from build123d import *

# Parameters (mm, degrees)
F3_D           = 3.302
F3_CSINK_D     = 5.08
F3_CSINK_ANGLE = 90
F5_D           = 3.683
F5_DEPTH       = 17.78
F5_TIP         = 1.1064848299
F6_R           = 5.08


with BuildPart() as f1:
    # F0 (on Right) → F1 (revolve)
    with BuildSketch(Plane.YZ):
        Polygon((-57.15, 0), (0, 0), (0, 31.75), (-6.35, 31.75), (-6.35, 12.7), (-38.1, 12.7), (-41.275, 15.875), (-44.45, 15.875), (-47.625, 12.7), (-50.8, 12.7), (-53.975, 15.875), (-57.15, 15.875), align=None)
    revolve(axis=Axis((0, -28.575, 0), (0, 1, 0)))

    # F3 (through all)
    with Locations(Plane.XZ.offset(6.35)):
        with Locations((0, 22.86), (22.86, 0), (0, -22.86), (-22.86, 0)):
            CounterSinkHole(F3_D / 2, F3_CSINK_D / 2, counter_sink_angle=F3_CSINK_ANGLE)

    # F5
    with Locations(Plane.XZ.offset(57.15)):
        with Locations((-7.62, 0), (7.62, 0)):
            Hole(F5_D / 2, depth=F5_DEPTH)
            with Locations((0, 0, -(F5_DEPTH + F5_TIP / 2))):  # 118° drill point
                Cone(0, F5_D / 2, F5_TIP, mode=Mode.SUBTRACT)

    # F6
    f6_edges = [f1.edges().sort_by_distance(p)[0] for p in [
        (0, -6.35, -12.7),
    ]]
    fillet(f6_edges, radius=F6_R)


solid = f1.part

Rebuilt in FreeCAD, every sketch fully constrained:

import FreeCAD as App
import Part
import Sketcher
from FreeCAD import Vector
Q = App.Units.Quantity


def edges_at(feature, points):
    """Names of the edges that pass closest to the given points."""
    edges = feature.Shape.Edges
    near = lambda p: min(range(len(edges)), key=lambda i: edges[i].distToShape(Part.Vertex(*p))[0])
    return sorted({f"Edge{near(p) + 1}" for p in points})

doc = App.newDocument("Part")
body = doc.addObject("PartDesign::Body", "Body")

# Sketch on YZ plane
sketch1 = doc.addObject("Sketcher::SketchObject", "Sketch")
body.addObject(sketch1)
sketch1.AttachmentSupport = (doc.YZ_Plane, [""])
sketch1.MapMode = "FlatFace"
sketch1.addGeometry([
    Part.LineSegment(Vector(-57.15, 0, 0), Vector(0, 0, 0)),  # 0
    Part.LineSegment(Vector(0, 0, 0), Vector(0, 31.75, 0)),  # 1
    Part.LineSegment(Vector(0, 31.75, 0), Vector(-6.35, 31.75, 0)),  # 2
    Part.LineSegment(Vector(-6.35, 31.75, 0), Vector(-6.35, 12.7, 0)),  # 3
    Part.LineSegment(Vector(-6.35, 12.7, 0), Vector(-38.1, 12.7, 0)),  # 4
    Part.LineSegment(Vector(-38.1, 12.7, 0), Vector(-41.275, 15.875, 0)),  # 5
    Part.LineSegment(Vector(-41.275, 15.875, 0), Vector(-44.45, 15.875, 0)),  # 6
    Part.LineSegment(Vector(-44.45, 15.875, 0), Vector(-47.625, 12.7, 0)),  # 7
    Part.LineSegment(Vector(-47.625, 12.7, 0), Vector(-50.8, 12.7, 0)),  # 8
    Part.LineSegment(Vector(-50.8, 12.7, 0), Vector(-53.975, 15.875, 0)),  # 9
    Part.LineSegment(Vector(-53.975, 15.875, 0), Vector(-57.15, 15.875, 0)),  # 10
    Part.LineSegment(Vector(-57.15, 15.875, 0), Vector(-57.15, 0, 0)),  # 11
], False)
sketch1.addConstraint([
    Sketcher.Constraint("Coincident", 0, 2, 1, 1),
    Sketcher.Constraint("Coincident", 1, 2, 2, 1),
    Sketcher.Constraint("Coincident", 2, 2, 3, 1),
    Sketcher.Constraint("Coincident", 3, 2, 4, 1),
    Sketcher.Constraint("Coincident", 4, 2, 5, 1),
    Sketcher.Constraint("Coincident", 5, 2, 6, 1),
    Sketcher.Constraint("Coincident", 6, 2, 7, 1),
    Sketcher.Constraint("Coincident", 7, 2, 8, 1),
    Sketcher.Constraint("Coincident", 8, 2, 9, 1),
    Sketcher.Constraint("Coincident", 9, 2, 10, 1),
    Sketcher.Constraint("Coincident", 10, 2, 11, 1),
    Sketcher.Constraint("Coincident", 11, 2, 0, 1),
    Sketcher.Constraint("Horizontal", 0),
    Sketcher.Constraint("Vertical", 1),
    Sketcher.Constraint("Horizontal", 2),
    Sketcher.Constraint("Vertical", 3),
    Sketcher.Constraint("Horizontal", 4),
    Sketcher.Constraint("Horizontal", 6),
    Sketcher.Constraint("Horizontal", 8),
    Sketcher.Constraint("Horizontal", 10),
    Sketcher.Constraint("Vertical", 11),
    Sketcher.Constraint("Coincident", 0, 2, -1, 1),
    Sketcher.Constraint("Perpendicular", 5, 7),
    Sketcher.Constraint("Perpendicular", 7, 9),
    Sketcher.Constraint("Horizontal", 4, 2, 7, 2),
    Sketcher.Constraint("Horizontal", 6, 2, 9, 2),
    Sketcher.Constraint("Equal", 6, 8),
    Sketcher.Constraint("Equal", 8, 10),
    Sketcher.Constraint("Equal", 4, 1),
    Sketcher.Constraint("Equal", 5, 7),
    Sketcher.Constraint("DistanceX", 8, 2, -1, 1, Q("2 in")),
    Sketcher.Constraint("DistanceX", 0, 1, 0, 2, Q("2.25 in")),
    Sketcher.Constraint("DistanceX", 2, 2, 2, 1, Q("0.25 in")),
    Sketcher.Constraint("DistanceY", 3, 2, 3, 1, Q("0.75 in")),
    Sketcher.Constraint("DistanceX", 6, 2, 6, 1, Q("0.125 in")),
])
revolution = doc.addObject("PartDesign::Revolution", "Revolution")
body.addObject(revolution)
revolution.Profile = sketch1
revolution.ReferenceAxis = (sketch1, ["H_Axis"])
revolution.Angle = 360

# Sketch on XZ plane
sketch2 = doc.addObject("Sketcher::SketchObject", "Sketch001")
body.addObject(sketch2)
sketch2.AttachmentSupport = (doc.XZ_Plane, [""])
sketch2.MapMode = "FlatFace"
sketch2.AttachmentOffset = App.Placement(Vector(0, 0, 0.25 * 25.4), App.Rotation())
sketch2.addGeometry([
    Part.Circle(Vector(0, 22.86, 0), Vector(0, 0, 1), 1.651),
    Part.Circle(Vector(22.86, 0, 0), Vector(0, 0, 1), 1.651),
    Part.Circle(Vector(0, -22.86, 0), Vector(0, 0, 1), 1.651),
    Part.Circle(Vector(-22.86, 0, 0), Vector(0, 0, 1), 1.651),
], False)
sketch2.addConstraint([
    Sketcher.Constraint("Equal", 0, 1),
    Sketcher.Constraint("Equal", 1, 2),
    Sketcher.Constraint("Equal", 2, 3),
    Sketcher.Constraint("Symmetric", 0, 3, 2, 3, -1, 1),
    Sketcher.Constraint("Symmetric", 1, 3, 3, 3, -1, 1),
    Sketcher.Constraint("PointOnObject", 0, 3, -2),
    Sketcher.Constraint("PointOnObject", 1, 3, -1),
    Sketcher.Constraint("Diameter", 0, Q("0.13 in")),
    Sketcher.Constraint("DistanceY", -1, 1, 0, 3, Q("0.9 in")),
    Sketcher.Constraint("DistanceX", -1, 1, 1, 3, Q("0.9 in")),
])
doc.recompute()
hole = doc.addObject("PartDesign::Hole", "Hole")
body.addObject(hole)
hole.Profile = sketch2
hole.ThreadType = "None"
hole.Diameter = Q("0.13 in")
hole.DepthType = "ThroughAll"
hole.HoleCutType = "Countersink"
hole.HoleCutDiameter = Q("0.2 in")
hole.HoleCutCountersinkAngle = 90

# Sketch on XZ plane
sketch3 = doc.addObject("Sketcher::SketchObject", "Sketch002")
body.addObject(sketch3)
sketch3.AttachmentSupport = (doc.XZ_Plane, [""])
sketch3.MapMode = "FlatFace"
sketch3.AttachmentOffset = App.Placement(Vector(0, 0, 2.25 * 25.4), App.Rotation())
sketch3.addGeometry([
    Part.Circle(Vector(-7.62, 0, 0), Vector(0, 0, 1), 1.8415),
    Part.Circle(Vector(7.62, 0, 0), Vector(0, 0, 1), 1.8415),
], False)
sketch3.addConstraint([
    Sketcher.Constraint("Equal", 0, 1),
    Sketcher.Constraint("Symmetric", 0, 3, 1, 3, -1, 1),
    Sketcher.Constraint("PointOnObject", 0, 3, -1),
    Sketcher.Constraint("Diameter", 0, Q("0.145 in")),
    Sketcher.Constraint("DistanceX", 0, 3, -1, 1, Q("0.3 in")),
])
doc.recompute()
hole2 = doc.addObject("PartDesign::Hole", "Hole001")
body.addObject(hole2)
hole2.Profile = sketch3
hole2.ThreadType = "None"
hole2.Diameter = Q("0.145 in")
hole2.DepthType = "Dimension"
hole2.Depth = Q("0.7 in")
hole2.DrillPoint = "Angled"
hole2.DrillPointAngle = 118
doc.recompute()

fillet = doc.addObject("PartDesign::Fillet", "Fillet")
body.addObject(fillet)
fillet.Base = (hole2, edges_at(hole2, [(0, -6.35, -12.7)]))
fillet.Radius = Q("0.2 in")

doc.recompute()
